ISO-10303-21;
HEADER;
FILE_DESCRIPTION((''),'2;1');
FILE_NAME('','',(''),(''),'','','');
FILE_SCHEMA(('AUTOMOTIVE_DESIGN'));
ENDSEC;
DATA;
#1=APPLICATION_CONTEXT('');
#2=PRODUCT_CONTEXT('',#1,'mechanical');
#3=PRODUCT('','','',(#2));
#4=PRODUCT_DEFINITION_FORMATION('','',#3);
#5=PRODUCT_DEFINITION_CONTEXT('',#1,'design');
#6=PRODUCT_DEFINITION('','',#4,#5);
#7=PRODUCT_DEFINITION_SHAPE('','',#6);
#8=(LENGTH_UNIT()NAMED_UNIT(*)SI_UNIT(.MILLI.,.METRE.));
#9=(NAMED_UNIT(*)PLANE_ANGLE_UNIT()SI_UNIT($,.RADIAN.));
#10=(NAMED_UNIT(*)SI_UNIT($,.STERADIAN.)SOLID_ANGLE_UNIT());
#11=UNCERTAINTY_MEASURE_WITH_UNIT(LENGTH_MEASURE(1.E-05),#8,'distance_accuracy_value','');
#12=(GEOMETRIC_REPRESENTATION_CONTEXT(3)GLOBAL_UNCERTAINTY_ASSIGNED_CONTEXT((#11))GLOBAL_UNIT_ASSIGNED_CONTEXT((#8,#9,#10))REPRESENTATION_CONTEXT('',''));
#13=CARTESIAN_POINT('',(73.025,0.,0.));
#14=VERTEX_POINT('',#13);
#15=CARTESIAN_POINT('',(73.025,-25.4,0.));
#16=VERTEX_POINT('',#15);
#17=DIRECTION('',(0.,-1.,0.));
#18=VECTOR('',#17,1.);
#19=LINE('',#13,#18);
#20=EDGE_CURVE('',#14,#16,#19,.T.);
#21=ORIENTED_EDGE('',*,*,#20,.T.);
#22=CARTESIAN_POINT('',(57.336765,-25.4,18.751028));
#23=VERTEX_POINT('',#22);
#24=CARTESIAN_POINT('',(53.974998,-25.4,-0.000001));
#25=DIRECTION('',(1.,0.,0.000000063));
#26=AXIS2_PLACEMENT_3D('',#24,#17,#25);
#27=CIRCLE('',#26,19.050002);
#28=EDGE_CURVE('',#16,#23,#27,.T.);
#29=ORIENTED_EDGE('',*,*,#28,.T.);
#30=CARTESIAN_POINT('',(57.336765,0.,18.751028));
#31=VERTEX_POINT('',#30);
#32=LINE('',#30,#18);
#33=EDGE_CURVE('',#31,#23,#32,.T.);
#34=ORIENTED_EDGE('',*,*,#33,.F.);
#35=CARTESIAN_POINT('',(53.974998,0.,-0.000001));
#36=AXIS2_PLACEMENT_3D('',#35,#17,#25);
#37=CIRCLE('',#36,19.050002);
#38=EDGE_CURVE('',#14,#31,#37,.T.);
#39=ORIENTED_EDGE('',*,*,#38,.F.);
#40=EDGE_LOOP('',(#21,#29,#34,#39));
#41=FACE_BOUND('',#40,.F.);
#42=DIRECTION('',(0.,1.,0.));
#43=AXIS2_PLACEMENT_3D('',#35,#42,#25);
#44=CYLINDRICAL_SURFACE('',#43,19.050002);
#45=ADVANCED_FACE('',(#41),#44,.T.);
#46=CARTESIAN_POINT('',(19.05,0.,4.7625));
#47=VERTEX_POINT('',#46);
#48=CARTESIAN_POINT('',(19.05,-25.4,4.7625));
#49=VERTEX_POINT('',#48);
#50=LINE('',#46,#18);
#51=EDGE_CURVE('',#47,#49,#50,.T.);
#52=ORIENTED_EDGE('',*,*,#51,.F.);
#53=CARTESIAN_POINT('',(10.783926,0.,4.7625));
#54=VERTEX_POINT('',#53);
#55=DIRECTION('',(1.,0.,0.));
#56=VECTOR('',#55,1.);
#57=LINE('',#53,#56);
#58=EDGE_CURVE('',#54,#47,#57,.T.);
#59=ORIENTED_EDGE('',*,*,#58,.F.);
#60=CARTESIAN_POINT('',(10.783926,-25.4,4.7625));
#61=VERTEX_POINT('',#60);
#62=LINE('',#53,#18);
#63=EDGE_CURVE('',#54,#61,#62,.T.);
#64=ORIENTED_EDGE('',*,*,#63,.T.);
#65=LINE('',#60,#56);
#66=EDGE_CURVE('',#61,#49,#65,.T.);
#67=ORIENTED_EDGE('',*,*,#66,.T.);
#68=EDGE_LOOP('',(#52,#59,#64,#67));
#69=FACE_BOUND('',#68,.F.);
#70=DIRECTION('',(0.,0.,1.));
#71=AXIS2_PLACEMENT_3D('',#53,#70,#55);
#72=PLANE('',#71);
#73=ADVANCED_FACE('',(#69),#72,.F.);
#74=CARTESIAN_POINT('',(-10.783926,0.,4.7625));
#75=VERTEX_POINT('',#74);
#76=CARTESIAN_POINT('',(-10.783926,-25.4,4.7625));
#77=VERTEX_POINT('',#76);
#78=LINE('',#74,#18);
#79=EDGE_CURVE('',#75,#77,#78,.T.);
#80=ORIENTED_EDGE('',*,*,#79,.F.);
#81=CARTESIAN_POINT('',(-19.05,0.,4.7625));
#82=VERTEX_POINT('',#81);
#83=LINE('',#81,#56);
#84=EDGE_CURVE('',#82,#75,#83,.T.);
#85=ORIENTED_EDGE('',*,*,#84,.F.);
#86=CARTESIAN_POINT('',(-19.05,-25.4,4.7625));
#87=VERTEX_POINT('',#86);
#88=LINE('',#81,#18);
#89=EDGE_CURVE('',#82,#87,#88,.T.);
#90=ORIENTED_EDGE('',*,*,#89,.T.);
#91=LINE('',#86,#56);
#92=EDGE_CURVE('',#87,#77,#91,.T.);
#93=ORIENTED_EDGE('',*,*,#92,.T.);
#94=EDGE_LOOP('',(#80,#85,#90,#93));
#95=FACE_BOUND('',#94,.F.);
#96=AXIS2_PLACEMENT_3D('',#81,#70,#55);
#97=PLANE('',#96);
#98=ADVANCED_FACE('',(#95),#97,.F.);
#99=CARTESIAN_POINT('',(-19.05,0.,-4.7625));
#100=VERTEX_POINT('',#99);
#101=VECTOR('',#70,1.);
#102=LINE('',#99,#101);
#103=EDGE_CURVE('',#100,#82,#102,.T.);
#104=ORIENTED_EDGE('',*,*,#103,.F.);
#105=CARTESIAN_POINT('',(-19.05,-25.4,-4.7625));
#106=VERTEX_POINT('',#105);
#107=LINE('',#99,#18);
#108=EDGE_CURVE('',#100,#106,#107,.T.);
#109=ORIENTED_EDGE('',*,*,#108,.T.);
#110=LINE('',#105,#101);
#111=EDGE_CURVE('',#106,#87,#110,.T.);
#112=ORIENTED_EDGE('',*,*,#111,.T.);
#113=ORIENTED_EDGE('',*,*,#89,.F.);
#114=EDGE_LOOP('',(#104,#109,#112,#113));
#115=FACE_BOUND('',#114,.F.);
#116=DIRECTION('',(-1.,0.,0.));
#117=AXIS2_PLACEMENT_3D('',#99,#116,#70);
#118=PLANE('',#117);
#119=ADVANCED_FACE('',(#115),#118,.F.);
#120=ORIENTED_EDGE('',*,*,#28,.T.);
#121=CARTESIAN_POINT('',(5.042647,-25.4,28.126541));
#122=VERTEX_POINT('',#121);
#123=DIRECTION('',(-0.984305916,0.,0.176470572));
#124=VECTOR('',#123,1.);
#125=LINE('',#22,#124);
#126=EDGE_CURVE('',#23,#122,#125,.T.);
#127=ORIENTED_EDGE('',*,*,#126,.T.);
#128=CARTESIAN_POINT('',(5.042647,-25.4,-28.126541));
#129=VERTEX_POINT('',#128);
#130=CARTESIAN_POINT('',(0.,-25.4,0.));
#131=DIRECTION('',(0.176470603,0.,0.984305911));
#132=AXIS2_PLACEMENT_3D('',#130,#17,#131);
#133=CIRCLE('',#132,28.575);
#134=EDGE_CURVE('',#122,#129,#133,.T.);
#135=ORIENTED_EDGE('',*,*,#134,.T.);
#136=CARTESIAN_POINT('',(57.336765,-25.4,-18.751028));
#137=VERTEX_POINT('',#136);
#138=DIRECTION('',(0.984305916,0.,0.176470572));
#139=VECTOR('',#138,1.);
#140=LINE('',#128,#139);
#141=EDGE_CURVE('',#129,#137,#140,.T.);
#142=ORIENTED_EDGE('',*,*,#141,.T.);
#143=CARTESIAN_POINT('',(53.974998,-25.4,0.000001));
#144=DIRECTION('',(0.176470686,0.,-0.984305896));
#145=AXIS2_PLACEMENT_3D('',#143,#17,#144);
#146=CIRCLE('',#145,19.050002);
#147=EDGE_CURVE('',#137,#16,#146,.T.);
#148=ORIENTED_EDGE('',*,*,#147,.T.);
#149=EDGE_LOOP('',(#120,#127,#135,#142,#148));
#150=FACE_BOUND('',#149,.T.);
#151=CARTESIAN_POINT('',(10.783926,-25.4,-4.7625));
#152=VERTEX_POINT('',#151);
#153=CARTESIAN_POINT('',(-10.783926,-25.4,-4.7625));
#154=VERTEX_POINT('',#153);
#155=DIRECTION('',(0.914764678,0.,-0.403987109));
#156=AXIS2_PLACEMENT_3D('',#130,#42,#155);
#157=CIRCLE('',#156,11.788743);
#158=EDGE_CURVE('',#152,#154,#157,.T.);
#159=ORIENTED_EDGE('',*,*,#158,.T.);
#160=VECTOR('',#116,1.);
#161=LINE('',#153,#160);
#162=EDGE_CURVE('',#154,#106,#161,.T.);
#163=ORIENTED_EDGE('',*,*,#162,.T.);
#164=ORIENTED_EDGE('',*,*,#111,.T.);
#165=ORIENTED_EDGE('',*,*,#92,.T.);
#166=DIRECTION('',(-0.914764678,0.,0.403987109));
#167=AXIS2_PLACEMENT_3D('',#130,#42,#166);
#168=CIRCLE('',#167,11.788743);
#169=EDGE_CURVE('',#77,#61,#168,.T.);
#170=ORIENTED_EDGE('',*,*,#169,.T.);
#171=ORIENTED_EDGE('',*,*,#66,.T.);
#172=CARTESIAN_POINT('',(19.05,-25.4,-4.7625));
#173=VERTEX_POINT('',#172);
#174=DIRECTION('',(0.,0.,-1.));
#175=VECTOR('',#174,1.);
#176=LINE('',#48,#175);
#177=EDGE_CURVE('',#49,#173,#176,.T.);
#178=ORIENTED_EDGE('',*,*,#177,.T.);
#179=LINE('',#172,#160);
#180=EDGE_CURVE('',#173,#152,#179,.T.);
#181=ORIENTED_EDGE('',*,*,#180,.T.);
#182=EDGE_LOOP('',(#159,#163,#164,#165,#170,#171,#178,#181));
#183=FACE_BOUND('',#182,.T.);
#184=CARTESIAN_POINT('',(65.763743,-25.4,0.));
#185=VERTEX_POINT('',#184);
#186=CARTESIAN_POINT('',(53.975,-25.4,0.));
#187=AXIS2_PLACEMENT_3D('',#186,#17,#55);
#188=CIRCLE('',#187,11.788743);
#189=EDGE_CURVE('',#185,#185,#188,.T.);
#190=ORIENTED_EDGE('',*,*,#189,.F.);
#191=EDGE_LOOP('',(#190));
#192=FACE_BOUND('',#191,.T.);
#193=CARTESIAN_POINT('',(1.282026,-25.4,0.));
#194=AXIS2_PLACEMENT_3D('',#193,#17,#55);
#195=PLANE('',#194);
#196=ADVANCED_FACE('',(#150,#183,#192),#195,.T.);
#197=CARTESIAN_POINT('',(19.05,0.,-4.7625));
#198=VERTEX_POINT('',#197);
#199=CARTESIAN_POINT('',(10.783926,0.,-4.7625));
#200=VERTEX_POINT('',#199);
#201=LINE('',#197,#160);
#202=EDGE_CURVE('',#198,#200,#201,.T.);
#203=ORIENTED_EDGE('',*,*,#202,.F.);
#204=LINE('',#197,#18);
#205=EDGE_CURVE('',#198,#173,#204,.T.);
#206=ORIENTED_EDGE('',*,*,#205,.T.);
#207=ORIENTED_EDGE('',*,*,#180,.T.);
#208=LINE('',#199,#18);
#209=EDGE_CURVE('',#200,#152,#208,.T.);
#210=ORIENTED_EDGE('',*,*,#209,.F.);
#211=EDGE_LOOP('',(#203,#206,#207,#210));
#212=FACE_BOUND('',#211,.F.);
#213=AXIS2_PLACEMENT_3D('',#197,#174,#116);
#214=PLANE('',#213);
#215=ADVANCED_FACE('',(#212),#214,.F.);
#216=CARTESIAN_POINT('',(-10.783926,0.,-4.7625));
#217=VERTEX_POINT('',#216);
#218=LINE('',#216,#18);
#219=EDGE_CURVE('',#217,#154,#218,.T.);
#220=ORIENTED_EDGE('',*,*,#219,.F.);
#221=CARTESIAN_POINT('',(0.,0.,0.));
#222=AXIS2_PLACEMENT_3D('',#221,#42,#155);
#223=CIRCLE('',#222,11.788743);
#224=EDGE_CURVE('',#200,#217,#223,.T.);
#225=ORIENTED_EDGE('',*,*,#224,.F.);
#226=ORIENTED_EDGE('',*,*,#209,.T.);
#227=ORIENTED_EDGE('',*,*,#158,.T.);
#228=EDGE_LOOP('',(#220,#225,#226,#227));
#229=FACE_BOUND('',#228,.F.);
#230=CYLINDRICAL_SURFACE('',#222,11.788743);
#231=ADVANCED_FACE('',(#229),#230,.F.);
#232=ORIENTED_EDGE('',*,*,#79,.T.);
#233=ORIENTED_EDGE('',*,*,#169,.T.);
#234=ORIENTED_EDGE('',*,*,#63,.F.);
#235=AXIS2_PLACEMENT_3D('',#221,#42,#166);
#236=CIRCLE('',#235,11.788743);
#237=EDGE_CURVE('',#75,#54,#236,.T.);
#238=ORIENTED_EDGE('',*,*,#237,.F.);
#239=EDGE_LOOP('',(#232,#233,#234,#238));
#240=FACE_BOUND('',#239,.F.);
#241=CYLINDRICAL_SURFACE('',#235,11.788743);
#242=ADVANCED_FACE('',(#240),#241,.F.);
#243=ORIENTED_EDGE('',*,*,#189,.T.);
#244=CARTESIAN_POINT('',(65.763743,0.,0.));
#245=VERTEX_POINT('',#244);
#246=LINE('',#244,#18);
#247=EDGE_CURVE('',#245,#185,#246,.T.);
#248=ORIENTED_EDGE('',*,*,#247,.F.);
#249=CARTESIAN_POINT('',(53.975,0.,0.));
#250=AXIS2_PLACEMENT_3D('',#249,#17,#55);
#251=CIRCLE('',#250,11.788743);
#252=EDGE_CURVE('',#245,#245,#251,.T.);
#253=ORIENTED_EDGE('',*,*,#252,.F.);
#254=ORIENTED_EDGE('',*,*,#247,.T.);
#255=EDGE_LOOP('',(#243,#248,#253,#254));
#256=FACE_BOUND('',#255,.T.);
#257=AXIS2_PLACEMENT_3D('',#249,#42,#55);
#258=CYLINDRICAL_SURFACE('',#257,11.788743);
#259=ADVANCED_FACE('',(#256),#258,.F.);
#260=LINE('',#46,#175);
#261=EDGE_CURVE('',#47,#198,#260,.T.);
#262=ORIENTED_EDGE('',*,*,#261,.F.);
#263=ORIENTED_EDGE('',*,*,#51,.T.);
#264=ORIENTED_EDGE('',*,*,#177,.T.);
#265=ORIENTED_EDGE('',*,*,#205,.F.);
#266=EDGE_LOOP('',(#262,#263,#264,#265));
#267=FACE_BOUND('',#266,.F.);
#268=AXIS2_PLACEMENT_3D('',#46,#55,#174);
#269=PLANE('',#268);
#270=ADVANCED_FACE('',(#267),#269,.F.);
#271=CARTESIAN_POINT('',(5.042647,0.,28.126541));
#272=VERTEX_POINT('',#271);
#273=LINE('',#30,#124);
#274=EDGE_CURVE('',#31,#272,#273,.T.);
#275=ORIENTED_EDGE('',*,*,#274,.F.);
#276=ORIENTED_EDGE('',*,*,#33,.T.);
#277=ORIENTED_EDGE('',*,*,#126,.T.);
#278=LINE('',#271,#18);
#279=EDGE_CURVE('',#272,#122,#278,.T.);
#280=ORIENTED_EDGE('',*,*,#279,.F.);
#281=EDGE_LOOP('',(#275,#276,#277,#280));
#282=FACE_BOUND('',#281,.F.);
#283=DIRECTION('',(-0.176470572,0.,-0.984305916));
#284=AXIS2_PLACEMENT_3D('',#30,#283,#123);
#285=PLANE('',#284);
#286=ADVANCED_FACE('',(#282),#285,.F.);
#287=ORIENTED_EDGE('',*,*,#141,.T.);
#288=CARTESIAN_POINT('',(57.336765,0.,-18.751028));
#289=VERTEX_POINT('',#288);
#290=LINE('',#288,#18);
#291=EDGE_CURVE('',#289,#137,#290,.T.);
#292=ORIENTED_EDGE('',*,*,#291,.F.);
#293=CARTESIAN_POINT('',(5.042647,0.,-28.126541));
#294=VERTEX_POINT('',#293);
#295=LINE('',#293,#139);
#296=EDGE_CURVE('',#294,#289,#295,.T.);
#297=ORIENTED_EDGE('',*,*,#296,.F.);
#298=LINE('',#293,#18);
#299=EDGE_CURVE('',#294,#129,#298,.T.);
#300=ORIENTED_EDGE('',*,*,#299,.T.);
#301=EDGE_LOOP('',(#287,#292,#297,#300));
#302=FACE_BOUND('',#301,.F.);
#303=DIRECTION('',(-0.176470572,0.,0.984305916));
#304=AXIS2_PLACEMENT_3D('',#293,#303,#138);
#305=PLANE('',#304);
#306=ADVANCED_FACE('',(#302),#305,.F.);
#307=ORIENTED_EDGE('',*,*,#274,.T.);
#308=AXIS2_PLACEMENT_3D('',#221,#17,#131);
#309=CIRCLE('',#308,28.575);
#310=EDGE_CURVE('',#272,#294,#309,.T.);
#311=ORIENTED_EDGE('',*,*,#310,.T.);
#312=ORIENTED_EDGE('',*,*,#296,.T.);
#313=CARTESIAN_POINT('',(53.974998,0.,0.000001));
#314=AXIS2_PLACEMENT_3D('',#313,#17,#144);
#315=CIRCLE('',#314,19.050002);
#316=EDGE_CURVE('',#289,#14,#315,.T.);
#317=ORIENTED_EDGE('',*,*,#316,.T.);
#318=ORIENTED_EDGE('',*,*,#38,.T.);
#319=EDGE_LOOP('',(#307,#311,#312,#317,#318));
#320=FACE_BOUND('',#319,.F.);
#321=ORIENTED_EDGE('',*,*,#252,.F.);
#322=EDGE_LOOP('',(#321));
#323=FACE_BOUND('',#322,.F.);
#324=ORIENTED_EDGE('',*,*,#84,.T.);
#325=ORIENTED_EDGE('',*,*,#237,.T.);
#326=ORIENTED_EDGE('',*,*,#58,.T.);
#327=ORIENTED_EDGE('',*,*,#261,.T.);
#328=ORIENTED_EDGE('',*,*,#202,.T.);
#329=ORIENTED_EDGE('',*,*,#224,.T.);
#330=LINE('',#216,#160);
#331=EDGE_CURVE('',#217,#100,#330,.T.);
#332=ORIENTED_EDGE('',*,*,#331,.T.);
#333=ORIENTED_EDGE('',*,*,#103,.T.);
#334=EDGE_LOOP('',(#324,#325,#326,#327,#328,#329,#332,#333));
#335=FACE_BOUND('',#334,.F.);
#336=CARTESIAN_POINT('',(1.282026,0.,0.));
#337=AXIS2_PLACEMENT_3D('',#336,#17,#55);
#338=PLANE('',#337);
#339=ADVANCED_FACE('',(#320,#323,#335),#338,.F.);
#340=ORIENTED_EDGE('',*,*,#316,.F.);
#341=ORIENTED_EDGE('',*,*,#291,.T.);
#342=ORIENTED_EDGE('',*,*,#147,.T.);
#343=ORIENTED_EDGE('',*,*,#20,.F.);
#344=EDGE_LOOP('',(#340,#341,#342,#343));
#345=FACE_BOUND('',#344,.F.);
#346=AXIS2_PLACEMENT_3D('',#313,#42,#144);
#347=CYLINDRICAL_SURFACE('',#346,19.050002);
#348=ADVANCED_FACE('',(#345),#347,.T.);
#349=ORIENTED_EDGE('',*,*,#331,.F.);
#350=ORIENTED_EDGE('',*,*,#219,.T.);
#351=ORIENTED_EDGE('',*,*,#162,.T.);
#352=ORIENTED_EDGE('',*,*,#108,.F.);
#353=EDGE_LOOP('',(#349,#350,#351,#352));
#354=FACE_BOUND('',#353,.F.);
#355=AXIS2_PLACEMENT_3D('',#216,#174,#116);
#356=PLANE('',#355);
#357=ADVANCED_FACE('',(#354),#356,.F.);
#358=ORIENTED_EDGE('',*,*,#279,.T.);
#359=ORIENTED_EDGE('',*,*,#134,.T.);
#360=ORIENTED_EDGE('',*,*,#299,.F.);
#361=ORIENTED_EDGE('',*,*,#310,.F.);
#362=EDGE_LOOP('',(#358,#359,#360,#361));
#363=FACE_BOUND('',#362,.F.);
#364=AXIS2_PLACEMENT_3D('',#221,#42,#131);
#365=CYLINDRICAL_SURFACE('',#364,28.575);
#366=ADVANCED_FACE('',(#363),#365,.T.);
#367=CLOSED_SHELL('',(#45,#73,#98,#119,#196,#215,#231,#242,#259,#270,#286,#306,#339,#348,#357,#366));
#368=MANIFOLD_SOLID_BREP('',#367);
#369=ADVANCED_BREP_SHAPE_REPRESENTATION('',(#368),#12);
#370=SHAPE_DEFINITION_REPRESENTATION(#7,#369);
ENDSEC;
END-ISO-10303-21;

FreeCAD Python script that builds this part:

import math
import FreeCAD as App
import Part
import Sketcher
Q = App.Units.Quantity

doc = App.newDocument("Part")
params = doc.addObject("Spreadsheet::Sheet", "Params")
for row, (alias, value) in enumerate([
    ("sketch1_radius", "0.7500001 in"),
    ("sketch1_radius2", "1.125 in"),
    ("sketch1_height", "0.375 in"),
    ("pad1_length", "1 in"),
], start=1):
    params.set(f"A{row}", alias)
    params.set(f"B{row}", "=" + value)
    params.setAlias(f"B{row}", alias)

body = doc.addObject("PartDesign::Body", "Body")

# Sketch on XZ plane
sketch1 = body.newObject("Sketcher::SketchObject", "Sketch")
sketch1.AttachmentSupport = (doc.getObject("XZ_Plane"), [""])
sketch1.MapMode = "FlatFace"
sketch1.addGeometry([
    Part.ArcOfCircle(Part.Circle(App.Vector(0, 0, 0), App.Vector(0, 0, 1), 28.575), math.radians(79.835751), math.radians(280.164249)),  # 0
    Part.LineSegment(App.Vector(5.042647, -28.126541, 0), App.Vector(57.336765, -18.751028, 0)),  # 1
    Part.ArcOfCircle(Part.Circle(App.Vector(53.974998, 0.000001, 0), App.Vector(0, 0, 1), 19.050002), math.radians(-79.835746), math.radians(-0.000004)),  # 2
    Part.ArcOfCircle(Part.Circle(App.Vector(53.974998, -0.000001, 0), App.Vector(0, 0, 1), 19.050002), math.radians(0.000004), math.radians(79.835746)),  # 3
    Part.LineSegment(App.Vector(57.336765, 18.751028, 0), App.Vector(5.042647, 28.126541, 0)),  # 4
    Part.LineSegment(App.Vector(-19.05, 4.7625, 0), App.Vector(-10.783926, 4.7625, 0)),  # 5
    Part.ArcOfCircle(Part.Circle(App.Vector(0, 0, 0), App.Vector(0, 0, 1), 11.788743), math.radians(23.82767), math.radians(156.17233)),  # 6
    Part.LineSegment(App.Vector(10.783926, 4.7625, 0), App.Vector(19.05, 4.7625, 0)),  # 7
    Part.LineSegment(App.Vector(19.05, 4.7625, 0), App.Vector(19.05, -4.7625, 0)),  # 8
    Part.LineSegment(App.Vector(19.05, -4.7625, 0), App.Vector(10.783926, -4.7625, 0)),  # 9
    Part.ArcOfCircle(Part.Circle(App.Vector(0, 0, 0), App.Vector(0, 0, 1), 11.788743), math.radians(-156.17233), math.radians(-23.82767)),  # 10
    Part.LineSegment(App.Vector(-10.783926, -4.7625, 0), App.Vector(-19.05, -4.7625, 0)),  # 11
    Part.LineSegment(App.Vector(-19.05, -4.7625, 0), App.Vector(-19.05, 4.7625, 0)),  # 12
    Part.Circle(App.Vector(53.975, 0, 0), App.Vector(0, 0, 1), 11.788743),  # 13
], False)
sketch1.addConstraint([
    Sketcher.Constraint("Tangent", 0, 2, 1, 1),
    Sketcher.Constraint("Tangent", 1, 2, 2, 1),
    Sketcher.Constraint("Tangent", 2, 2, 3, 1),
    Sketcher.Constraint("Tangent", 3, 2, 4, 1),
    Sketcher.Constraint("Tangent", 4, 2, 0, 1),
    Sketcher.Constraint("Coincident", 5, 2, 6, 2),
    Sketcher.Constraint("Coincident", 6, 1, 7, 1),
    Sketcher.Constraint("Coincident", 7, 2, 8, 1),
    Sketcher.Constraint("Coincident", 8, 2, 9, 1),
    Sketcher.Constraint("Coincident", 9, 2, 10, 2),
    Sketcher.Constraint("Coincident", 10, 1, 11, 1),
    Sketcher.Constraint("Coincident", 11, 2, 12, 1),
    Sketcher.Constraint("Coincident", 12, 2, 5, 1),
    Sketcher.Constraint("Horizontal", 5),
    Sketcher.Constraint("Horizontal", 7),
    Sketcher.Constraint("Vertical", 8),
    Sketcher.Constraint("Horizontal", 9),
    Sketcher.Constraint("Horizontal", 11),
    Sketcher.Constraint("Vertical", 12),
    Sketcher.Constraint("Coincident", 0, 3, -1, 1),
    Sketcher.Constraint("Coincident", 6, 3, -1, 1),
    Sketcher.Constraint("Coincident", 10, 3, -1, 1),
    Sketcher.Constraint("Coincident", 13, 3, 2, 3),
    Sketcher.Constraint("Equal", 2, 3),
    Sketcher.Constraint("Equal", 6, 10),
    Sketcher.Constraint("Equal", 10, 13),
    Sketcher.Constraint("Symmetric", 7, 2, 11, 2, -1, 1),
    Sketcher.Constraint("PointOnObject", 2, 3, -1),
    Sketcher.Constraint("PointOnObject", 2, 2, -1),
    Sketcher.Constraint("Horizontal", 5, 2, 6, 1),
    Sketcher.Constraint("Horizontal", 9, 2, 10, 1),
    Sketcher.Constraint("Radius", 2, Q("0.7500001 in")),
    Sketcher.Constraint("Radius", 0, Q("1.125 in")),
    Sketcher.Constraint("DistanceY", 8, 2, 8, 1, Q("0.375 in")),
    Sketcher.Constraint("DistanceX", -1, 1, 7, 2, Q("0.75 in")),
    Sketcher.Constraint("DistanceX", -1, 1, 2, 3, Q("2.1249999 in")),
    Sketcher.Constraint("Diameter", 13, Q("23.577486 mm")),
])
sketch1.setExpression("Constraints[31]", "Params.sketch1_radius")
sketch1.setExpression("Constraints[32]", "Params.sketch1_radius2")
sketch1.setExpression("Constraints[33]", "Params.sketch1_height")
pad1 = body.newObject("PartDesign::Pad", "Pad")
pad1.Profile = sketch1
pad1.setExpression("Length", "Params.pad1_length")

doc.recompute()
